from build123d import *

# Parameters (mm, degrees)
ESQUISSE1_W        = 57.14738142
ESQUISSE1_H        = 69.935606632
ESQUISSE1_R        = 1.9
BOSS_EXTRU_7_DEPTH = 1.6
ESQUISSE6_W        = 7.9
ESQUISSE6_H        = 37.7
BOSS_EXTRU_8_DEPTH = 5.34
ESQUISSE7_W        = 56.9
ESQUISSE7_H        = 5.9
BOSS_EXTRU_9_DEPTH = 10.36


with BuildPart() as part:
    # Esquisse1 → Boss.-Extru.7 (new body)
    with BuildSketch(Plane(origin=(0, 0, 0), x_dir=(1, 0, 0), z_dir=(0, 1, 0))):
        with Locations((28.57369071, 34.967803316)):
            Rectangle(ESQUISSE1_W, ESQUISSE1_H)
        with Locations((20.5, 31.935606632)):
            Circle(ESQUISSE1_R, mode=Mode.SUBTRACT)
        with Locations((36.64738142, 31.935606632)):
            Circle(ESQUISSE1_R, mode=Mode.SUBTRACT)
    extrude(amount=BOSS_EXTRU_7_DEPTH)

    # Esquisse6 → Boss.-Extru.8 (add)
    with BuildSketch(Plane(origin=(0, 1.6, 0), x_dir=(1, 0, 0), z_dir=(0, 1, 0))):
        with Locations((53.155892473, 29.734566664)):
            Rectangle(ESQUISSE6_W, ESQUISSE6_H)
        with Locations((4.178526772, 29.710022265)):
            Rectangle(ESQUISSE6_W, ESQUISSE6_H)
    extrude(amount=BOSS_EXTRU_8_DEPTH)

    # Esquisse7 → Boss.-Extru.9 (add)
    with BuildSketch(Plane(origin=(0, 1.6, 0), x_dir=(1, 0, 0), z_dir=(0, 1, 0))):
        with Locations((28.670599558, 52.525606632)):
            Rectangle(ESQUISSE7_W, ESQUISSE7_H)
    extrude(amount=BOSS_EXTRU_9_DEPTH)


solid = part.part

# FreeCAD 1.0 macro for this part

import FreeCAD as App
import Part
import Sketcher
from FreeCAD import Vector

doc = App.newDocument("Part")
body = doc.addObject("PartDesign::Body", "Body")

# Sketch on XZ plane
sketch1 = doc.addObject("Sketcher::SketchObject", "Sketch")
body.addObject(sketch1)
sketch1.AttachmentSupport = (doc.XZ_Plane, [""])
sketch1.MapMode = "FlatFace"
sketch1.addGeometry([
    Part.LineSegment(Vector(0, -69.9, 0), Vector(0, 0, 0)),  # 0
    Part.LineSegment(Vector(0, 0, 0), Vector(57.1, 0, 0)),  # 1
    Part.LineSegment(Vector(57.1, 0, 0), Vector(57.1, -69.9, 0)),  # 2
    Part.LineSegment(Vector(57.1, -69.9, 0), Vector(0, -69.9, 0)),  # 3
    Part.Circle(Vector(20.5, -31.9, 0), Vector(0, 0, 1), 1.9),  # 4
    Part.Circle(Vector(36.6, -31.9, 0), Vector(0, 0, 1), 1.9),  # 5
], False)
sketch1.addConstraint([
    Sketcher.Constraint("Coincident", 0, 2, 1, 1),
    Sketcher.Constraint("Coincident", 1, 2, 2, 1),
    Sketcher.Constraint("Coincident", 2, 2, 3, 1),
    Sketcher.Constraint("Coincident", 3, 2, 0, 1),
    Sketcher.Constraint("Vertical", 0),
    Sketcher.Constraint("Horizontal", 1),
    Sketcher.Constraint("Vertical", 2),
    Sketcher.Constraint("Horizontal", 3),
    Sketcher.Constraint("Coincident", 0, 2, -1, 1),
    Sketcher.Constraint("Equal", 4, 5),
    Sketcher.Constraint("Horizontal", 4, 3, 5, 3),
    Sketcher.Constraint("Diameter", 4, 3.8),
    Sketcher.Constraint("DistanceY", 2, 2, 5, 3, 38.0),
    Sketcher.Constraint("DistanceX", -1, 1, 4, 3, 20.5),
    Sketcher.Constraint("DistanceX", 5, 3, 1, 2, 20.5),
    Sketcher.Constraint("DistanceX", 1, 1, 1, 2, 57.147381),
    Sketcher.Constraint("DistanceY", 0, 1, 0, 2, 69.935607),
])
pad1 = doc.addObject("PartDesign::Pad", "Pad")
body.addObject(pad1)
pad1.Profile = sketch1
pad1.Length = 1.6
pad1.Reversed = True

# Sketch on XZ plane
sketch2 = doc.addObject("Sketcher::SketchObject", "Sketch001")
body.addObject(sketch2)
sketch2.AttachmentSupport = (doc.XZ_Plane, [""])
sketch2.MapMode = "FlatFace"
sketch2.AttachmentOffset = App.Placement(Vector(0, 0, -1.6), App.Rotation())
sketch2.addGeometry([
    Part.LineSegment(Vector(49, -49, 0), Vector(49, -11, 0)),  # 0
    Part.LineSegment(Vector(49, -11, 0), Vector(57, -11, 0)),  # 1
    Part.LineSegment(Vector(57, -11, 0), Vector(57, -49, 0)),  # 2
    Part.LineSegment(Vector(57, -49, 0), Vector(49, -49, 0)),  # 3
    Part.LineSegment(Vector(0, -49, 0), Vector(0, -11, 0)),  # 4
    Part.LineSegment(Vector(0, -11, 0), Vector(8, -11, 0)),  # 5
    Part.LineSegment(Vector(8, -11, 0), Vector(8, -49, 0)),  # 6
    Part.LineSegment(Vector(8, -49, 0), Vector(0, -49, 0)),  # 7
], False)
sketch2.addConstraint([
    Sketcher.Constraint("Coincident", 0, 2, 1, 1),
    Sketcher.Constraint("Coincident", 1, 2, 2, 1),
    Sketcher.Constraint("Coincident", 2, 2, 3, 1),
    Sketcher.Constraint("Coincident", 3, 2, 0, 1),
    Sketcher.Constraint("Coincident", 4, 2, 5, 1),
    Sketcher.Constraint("Coincident", 5, 2, 6, 1),
    Sketcher.Constraint("Coincident", 6, 2, 7, 1),
    Sketcher.Constraint("Coincident", 7, 2, 4, 1),
    Sketcher.Constraint("Vertical", 0),
    Sketcher.Constraint("Horizontal", 1),
    Sketcher.Constraint("Vertical", 2),
    Sketcher.Constraint("Horizontal", 3),
    Sketcher.Constraint("Vertical", 4),
    Sketcher.Constraint("Horizontal", 5),
    Sketcher.Constraint("Vertical", 6),
    Sketcher.Constraint("Horizontal", 7),
    Sketcher.Constraint("Equal", 3, 5),
    Sketcher.Constraint("Equal", 2, 4),
    Sketcher.Constraint("DistanceX", 1, 1, 1, 2, 7.9),
    Sketcher.Constraint("DistanceY", 0, 1, 0, 2, 37.7),
    Sketcher.Constraint("DistanceX", -1, 1, 0, 2, 49.205892),
    Sketcher.Constraint("DistanceY", 0, 2, -1, 1, 10.884567),
    Sketcher.Constraint("DistanceX", -1, 1, 4, 2, 0.228527),
    Sketcher.Constraint("DistanceY", 4, 2, -1, 1, 10.860022),
])
pad2 = doc.addObject("PartDesign::Pad", "Pad001")
body.addObject(pad2)
pad2.Profile = sketch2
pad2.Length = 5.34
pad2.Reversed = True

# Sketch on XZ plane
sketch3 = doc.addObject("Sketcher::SketchObject", "Sketch002")
body.addObject(sketch3)
sketch3.AttachmentSupport = (doc.XZ_Plane, [""])
sketch3.MapMode = "FlatFace"
sketch3.AttachmentOffset = App.Placement(Vector(0, 0, -1.6), App.Rotation())
sketch3.addGeometry([
    Part.LineSegment(Vector(0, -55, 0), Vector(0, -50, 0)),
    Part.LineSegment(Vector(0, -50, 0), Vector(57, -50, 0)),
    Part.LineSegment(Vector(57, -50, 0), Vector(57, -55, 0)),
    Part.LineSegment(Vector(57, -55, 0), Vector(0, -55, 0)),
], False)
sketch3.addConstraint([
    Sketcher.Constraint("Coincident", 0, 2, 1, 1),
    Sketcher.Constraint("Coincident", 1, 2, 2, 1),
    Sketcher.Constraint("Coincident", 2, 2, 3, 1),
    Sketcher.Constraint("Coincident", 3, 2, 0, 1),
    Sketcher.Constraint("Vertical", 0),
    Sketcher.Constraint("Horizontal", 1),
    Sketcher.Constraint("Vertical", 2),
    Sketcher.Constraint("Horizontal", 3),
    Sketcher.Constraint("DistanceX", 1, 1, 1, 2, 56.9),
    Sketcher.Constraint("DistanceY", 0, 1, 0, 2, 5.9),
    Sketcher.Constraint("DistanceX", -1, 1, 0, 2, 0.2206),
    Sketcher.Constraint("DistanceY", 0, 2, -1, 1, 49.575607),
])
pad3 = doc.addObject("PartDesign::Pad", "Pad002")
body.addObject(pad3)
pad3.Profile = sketch3
pad3.Length = 10.36
pad3.Reversed = True

doc.recompute()
